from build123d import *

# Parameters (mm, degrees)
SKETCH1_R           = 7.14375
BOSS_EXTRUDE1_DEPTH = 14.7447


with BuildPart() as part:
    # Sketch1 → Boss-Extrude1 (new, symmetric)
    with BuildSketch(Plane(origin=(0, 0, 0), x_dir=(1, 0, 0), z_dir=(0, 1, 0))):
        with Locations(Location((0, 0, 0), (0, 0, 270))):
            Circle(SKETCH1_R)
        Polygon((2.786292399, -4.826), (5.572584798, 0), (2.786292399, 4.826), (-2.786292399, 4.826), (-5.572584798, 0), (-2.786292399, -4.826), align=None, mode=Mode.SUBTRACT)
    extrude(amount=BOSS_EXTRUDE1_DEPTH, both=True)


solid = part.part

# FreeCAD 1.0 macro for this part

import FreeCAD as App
import Part
import Sketcher

V = App.Vector
Q = App.Units.Quantity

doc = App.newDocument("Part")
params = doc.addObject("Spreadsheet::Sheet", "Params")
for row, (alias, value) in enumerate([
    ("sketch1_diameter", "0.5625 in"),
    ("pad1_length", "1.161 in"),
], start=1):
    params.set(f"A{row}", alias)
    params.set(f"B{row}", "=" + value)
    params.setAlias(f"B{row}", alias)

body = doc.addObject("PartDesign::Body", "Body")

# Sketch on XZ plane
sketch1 = body.newObject("Sketcher::SketchObject", "Sketch")
sketch1.AttachmentSupport = (doc.getObject("XZ_Plane"), [""])
sketch1.MapMode = "FlatFace"
sketch1.addGeometry(Part.Circle(V(0, 0, 0), V(0, 0, 1), 7), False)
sketch1.addGeometry(Part.LineSegment(V(6, 0, 0), V(3, 5, 0)), False)
sketch1.addGeometry(Part.LineSegment(V(3, 5, 0), V(-3, 5, 0)), False)
sketch1.addGeometry(Part.LineSegment(V(-3, 5, 0), V(-6, 0, 0)), False)
sketch1.addGeometry(Part.LineSegment(V(-6, 0, 0), V(-3, -5, 0)), False)
sketch1.addGeometry(Part.LineSegment(V(-3, -5, 0), V(3, -5, 0)), False)
sketch1.addGeometry(Part.LineSegment(V(3, -5, 0), V(6, 0, 0)), False)
sketch1.addConstraint(Sketcher.Constraint("Coincident", 1, 2, 2, 1))
sketch1.addConstraint(Sketcher.Constraint("Coincident", 2, 2, 3, 1))
sketch1.addConstraint(Sketcher.Constraint("Coincident", 3, 2, 4, 1))
sketch1.addConstraint(Sketcher.Constraint("Coincident", 4, 2, 5, 1))
sketch1.addConstraint(Sketcher.Constraint("Coincident", 5, 2, 6, 1))
sketch1.addConstraint(Sketcher.Constraint("Coincident", 6, 2, 1, 1))
sketch1.addConstraint(Sketcher.Constraint("Horizontal", 2))
sketch1.addConstraint(Sketcher.Constraint("Horizontal", 5))
sketch1.addConstraint(Sketcher.Constraint("Coincident", 0, 3, -1, 1))
sketch1.addConstraint(Sketcher.Constraint("Symmetric", 1, 2, 4, 2, -1, 1))
sketch1.addConstraint(Sketcher.Constraint("Symmetric", 3, 2, 6, 2, -1, 1))
sketch1.addConstraint(Sketcher.Constraint("PointOnObject", 3, 2, -1))
sketch1.addConstraint(Sketcher.Constraint("Parallel", 3, 6))
sketch1.addConstraint(Sketcher.Constraint("Vertical", 2, 2, 4, 2))
sketch1.addConstraint(Sketcher.Constraint("Diameter", 0, Q("0.5625 in")))
sketch1.addConstraint(Sketcher.Constraint("Angle", 1, Q("120 deg")))
sketch1.addConstraint(Sketcher.Constraint("DistanceY", -1, 1, 1, 2, Q("0.19 in")))
sketch1.addConstraint(Sketcher.Constraint("DistanceX", 2, 2, 2, 1, 5.572585))
sketch1.setExpression("Constraints[14]", "Params.sketch1_diameter")
pad1 = body.newObject("PartDesign::Pad", "Pad")
pad1.Profile = sketch1
pad1.setExpression("Length", "Params.pad1_length")
pad1.Midplane = True

doc.recompute()
